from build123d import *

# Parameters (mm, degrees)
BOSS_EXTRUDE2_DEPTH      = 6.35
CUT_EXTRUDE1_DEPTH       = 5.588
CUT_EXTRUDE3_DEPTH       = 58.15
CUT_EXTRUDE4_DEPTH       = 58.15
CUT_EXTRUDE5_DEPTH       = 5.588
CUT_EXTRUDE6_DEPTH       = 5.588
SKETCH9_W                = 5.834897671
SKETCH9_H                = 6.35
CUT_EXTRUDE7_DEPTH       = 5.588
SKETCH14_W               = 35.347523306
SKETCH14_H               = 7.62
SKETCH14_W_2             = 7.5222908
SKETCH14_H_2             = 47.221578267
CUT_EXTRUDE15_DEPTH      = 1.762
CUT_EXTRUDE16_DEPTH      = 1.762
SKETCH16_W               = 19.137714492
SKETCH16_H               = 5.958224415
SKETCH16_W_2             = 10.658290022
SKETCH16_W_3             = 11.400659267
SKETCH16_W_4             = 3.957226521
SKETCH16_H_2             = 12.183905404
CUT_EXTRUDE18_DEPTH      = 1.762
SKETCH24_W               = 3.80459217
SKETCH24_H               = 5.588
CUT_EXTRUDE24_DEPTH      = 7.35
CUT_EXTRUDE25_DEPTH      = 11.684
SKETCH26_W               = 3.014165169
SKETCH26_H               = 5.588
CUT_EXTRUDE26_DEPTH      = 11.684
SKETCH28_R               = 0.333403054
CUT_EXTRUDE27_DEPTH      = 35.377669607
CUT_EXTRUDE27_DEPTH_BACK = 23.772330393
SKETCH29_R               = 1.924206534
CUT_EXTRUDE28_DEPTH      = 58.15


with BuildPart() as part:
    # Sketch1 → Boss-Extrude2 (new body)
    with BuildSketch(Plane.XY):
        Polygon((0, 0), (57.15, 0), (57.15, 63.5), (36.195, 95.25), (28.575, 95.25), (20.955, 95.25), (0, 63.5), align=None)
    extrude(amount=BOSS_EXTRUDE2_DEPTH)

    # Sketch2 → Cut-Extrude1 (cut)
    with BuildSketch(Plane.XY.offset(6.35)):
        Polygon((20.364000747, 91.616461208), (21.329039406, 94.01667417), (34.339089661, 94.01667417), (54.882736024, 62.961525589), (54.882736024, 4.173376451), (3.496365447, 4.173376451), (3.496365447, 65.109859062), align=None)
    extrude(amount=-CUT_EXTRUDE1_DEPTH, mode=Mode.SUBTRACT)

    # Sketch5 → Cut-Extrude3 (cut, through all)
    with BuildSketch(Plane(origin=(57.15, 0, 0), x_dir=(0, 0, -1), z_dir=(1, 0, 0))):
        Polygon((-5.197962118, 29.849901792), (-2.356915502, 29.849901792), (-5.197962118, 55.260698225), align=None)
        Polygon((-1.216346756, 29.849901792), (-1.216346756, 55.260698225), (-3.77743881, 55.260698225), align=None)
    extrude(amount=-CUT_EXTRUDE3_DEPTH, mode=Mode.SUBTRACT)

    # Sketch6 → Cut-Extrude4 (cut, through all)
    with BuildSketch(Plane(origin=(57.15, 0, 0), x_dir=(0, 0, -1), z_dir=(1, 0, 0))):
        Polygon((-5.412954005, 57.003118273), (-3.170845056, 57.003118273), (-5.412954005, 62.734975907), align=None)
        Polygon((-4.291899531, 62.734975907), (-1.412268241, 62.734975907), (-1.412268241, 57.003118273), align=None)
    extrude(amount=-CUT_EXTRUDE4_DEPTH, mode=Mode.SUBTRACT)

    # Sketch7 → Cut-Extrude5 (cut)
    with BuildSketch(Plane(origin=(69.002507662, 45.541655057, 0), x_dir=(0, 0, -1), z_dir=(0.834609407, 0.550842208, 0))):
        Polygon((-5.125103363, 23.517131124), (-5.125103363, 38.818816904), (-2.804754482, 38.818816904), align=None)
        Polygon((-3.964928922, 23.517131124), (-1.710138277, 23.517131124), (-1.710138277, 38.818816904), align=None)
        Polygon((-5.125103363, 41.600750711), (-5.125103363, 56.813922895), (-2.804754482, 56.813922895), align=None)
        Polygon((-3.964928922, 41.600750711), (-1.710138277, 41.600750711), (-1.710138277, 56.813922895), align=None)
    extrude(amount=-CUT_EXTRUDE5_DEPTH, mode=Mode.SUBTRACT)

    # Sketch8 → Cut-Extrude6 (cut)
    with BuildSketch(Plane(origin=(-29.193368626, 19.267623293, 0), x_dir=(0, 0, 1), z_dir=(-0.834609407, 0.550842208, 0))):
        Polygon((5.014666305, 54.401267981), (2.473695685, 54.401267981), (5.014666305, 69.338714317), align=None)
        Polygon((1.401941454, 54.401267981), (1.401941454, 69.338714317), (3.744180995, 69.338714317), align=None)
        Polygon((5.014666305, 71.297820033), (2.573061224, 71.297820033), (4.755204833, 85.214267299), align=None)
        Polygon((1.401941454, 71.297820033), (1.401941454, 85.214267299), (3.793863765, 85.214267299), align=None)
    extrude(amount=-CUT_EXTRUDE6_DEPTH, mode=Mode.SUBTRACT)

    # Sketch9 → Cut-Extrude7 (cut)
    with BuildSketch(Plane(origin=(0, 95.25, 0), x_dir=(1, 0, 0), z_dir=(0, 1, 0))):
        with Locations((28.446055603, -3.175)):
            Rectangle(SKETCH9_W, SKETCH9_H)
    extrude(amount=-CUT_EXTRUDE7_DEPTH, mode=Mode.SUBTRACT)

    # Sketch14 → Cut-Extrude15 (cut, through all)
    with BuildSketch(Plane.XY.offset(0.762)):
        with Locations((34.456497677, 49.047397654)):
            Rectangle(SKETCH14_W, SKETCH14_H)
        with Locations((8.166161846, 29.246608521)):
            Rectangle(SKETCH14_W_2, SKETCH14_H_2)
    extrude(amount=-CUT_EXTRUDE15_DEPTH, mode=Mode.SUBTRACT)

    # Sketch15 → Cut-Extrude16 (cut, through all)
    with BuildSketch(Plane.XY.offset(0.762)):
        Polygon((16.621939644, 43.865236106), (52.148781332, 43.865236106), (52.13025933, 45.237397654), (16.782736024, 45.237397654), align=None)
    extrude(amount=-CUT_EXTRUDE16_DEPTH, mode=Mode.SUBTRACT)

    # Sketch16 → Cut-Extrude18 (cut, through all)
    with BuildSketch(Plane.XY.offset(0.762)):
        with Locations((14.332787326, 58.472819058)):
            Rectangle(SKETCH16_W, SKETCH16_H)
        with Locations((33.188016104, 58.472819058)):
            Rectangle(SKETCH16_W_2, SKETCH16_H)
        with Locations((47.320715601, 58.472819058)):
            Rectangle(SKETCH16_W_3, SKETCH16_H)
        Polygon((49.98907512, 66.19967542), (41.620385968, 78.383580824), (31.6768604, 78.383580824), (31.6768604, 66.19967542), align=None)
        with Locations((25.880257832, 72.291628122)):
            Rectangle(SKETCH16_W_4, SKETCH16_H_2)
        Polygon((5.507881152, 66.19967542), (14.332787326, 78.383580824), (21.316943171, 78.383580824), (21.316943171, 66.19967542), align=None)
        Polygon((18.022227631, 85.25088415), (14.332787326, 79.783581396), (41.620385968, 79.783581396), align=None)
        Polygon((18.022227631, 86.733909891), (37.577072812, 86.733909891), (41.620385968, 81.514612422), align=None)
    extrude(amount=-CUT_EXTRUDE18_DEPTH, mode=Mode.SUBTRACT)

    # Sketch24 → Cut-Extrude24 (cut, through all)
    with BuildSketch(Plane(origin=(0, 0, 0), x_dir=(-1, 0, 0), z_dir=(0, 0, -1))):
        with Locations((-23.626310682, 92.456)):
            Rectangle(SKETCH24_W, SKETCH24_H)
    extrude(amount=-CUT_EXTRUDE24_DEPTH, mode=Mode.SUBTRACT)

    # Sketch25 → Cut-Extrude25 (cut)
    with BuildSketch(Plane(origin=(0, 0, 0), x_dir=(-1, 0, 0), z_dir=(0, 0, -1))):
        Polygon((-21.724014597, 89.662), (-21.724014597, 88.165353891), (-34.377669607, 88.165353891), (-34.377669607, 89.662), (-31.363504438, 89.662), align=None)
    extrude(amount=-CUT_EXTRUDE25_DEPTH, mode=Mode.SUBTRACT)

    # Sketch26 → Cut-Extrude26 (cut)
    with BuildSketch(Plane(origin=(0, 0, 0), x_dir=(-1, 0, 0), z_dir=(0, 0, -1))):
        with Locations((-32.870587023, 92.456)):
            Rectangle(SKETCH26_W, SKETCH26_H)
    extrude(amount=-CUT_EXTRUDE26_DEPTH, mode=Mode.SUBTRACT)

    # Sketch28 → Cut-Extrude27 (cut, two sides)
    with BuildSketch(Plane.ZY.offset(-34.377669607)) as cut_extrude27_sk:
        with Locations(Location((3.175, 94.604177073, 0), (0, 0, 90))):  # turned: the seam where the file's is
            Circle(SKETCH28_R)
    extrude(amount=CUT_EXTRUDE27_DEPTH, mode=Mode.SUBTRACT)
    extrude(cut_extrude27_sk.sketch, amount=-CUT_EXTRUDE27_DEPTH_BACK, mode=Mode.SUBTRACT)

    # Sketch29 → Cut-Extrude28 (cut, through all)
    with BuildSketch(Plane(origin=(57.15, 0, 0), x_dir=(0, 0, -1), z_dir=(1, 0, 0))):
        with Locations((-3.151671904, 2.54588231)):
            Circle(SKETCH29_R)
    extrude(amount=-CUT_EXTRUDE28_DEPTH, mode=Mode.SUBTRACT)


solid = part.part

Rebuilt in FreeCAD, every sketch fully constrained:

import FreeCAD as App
import Part
import Sketcher
from FreeCAD import Vector
Q = App.Units.Quantity

doc = App.newDocument("Part")
body = doc.addObject("PartDesign::Body", "Body")

# Sketch on XY plane
sketch1 = body.newObject("Sketcher::SketchObject", "Sketch")
sketch1.AttachmentSupport = (doc.getObject("XY_Plane"), [""])
sketch1.MapMode = "FlatFace"
sketch1.addGeometry(Part.LineSegment(Vector(0, 0, 0), Vector(57, 0, 0)), False)
sketch1.addGeometry(Part.LineSegment(Vector(57, 0, 0), Vector(57, 64, 0)), False)
sketch1.addGeometry(Part.LineSegment(Vector(57, 64, 0), Vector(36, 95, 0)), False)
sketch1.addGeometry(Part.LineSegment(Vector(36, 95, 0), Vector(21, 95, 0)), False)
sketch1.addGeometry(Part.LineSegment(Vector(21, 95, 0), Vector(0, 64, 0)), False)
sketch1.addGeometry(Part.LineSegment(Vector(0, 64, 0), Vector(0, 0, 0)), False)
sketch1.addConstraint(Sketcher.Constraint("Coincident", 0, 2, 1, 1))
sketch1.addConstraint(Sketcher.Constraint("Coincident", 1, 2, 2, 1))
sketch1.addConstraint(Sketcher.Constraint("Coincident", 2, 2, 3, 1))
sketch1.addConstraint(Sketcher.Constraint("Coincident", 3, 2, 4, 1))
sketch1.addConstraint(Sketcher.Constraint("Coincident", 4, 2, 5, 1))
sketch1.addConstraint(Sketcher.Constraint("Coincident", 5, 2, 0, 1))
sketch1.addConstraint(Sketcher.Constraint("Horizontal", 0))
sketch1.addConstraint(Sketcher.Constraint("Vertical", 1))
sketch1.addConstraint(Sketcher.Constraint("Horizontal", 3))
sketch1.addConstraint(Sketcher.Constraint("Vertical", 5))
sketch1.addConstraint(Sketcher.Constraint("Coincident", 5, 2, -1, 1))
sketch1.addConstraint(Sketcher.Constraint("Horizontal", 1, 2, 4, 2))
sketch1.addConstraint(Sketcher.Constraint("Equal", 2, 4))
sketch1.addConstraint(Sketcher.Constraint("DistanceX", 3, 2, 3, 1, Q("0.6 in")))
sketch1.addConstraint(Sketcher.Constraint("DistanceY", 1, 1, 1, 2, Q("2.5 in")))
sketch1.addConstraint(Sketcher.Constraint("DistanceX", 0, 1, 0, 2, Q("2.25 in")))
sketch1.addConstraint(Sketcher.Constraint("DistanceY", -1, 1, 2, 2, Q("3.75 in")))
pad1 = body.newObject("PartDesign::Pad", "Pad")
pad1.Profile = sketch1
pad1.Length = Q("0.25 in")

# Sketch on XY plane
sketch2 = body.newObject("Sketcher::SketchObject", "Sketch001")
sketch2.AttachmentSupport = (doc.getObject("XY_Plane"), [""])
sketch2.MapMode = "FlatFace"
sketch2.AttachmentOffset = App.Placement(Vector(0, 0, 0.25 * 25.4), App.Rotation())
sketch2.addGeometry(Part.LineSegment(Vector(21.3, 94, 0), Vector(20.4, 91.6, 0)), False)
sketch2.addGeometry(Part.LineSegment(Vector(20.4, 91.6, 0), Vector(3.5, 65.1, 0)), False)
sketch2.addGeometry(Part.LineSegment(Vector(3.5, 65.1, 0), Vector(3.5, 4.2, 0)), False)
sketch2.addGeometry(Part.LineSegment(Vector(3.5, 4.2, 0), Vector(54.9, 4.2, 0)), False)
sketch2.addGeometry(Part.LineSegment(Vector(54.9, 4.2, 0), Vector(54.9, 63, 0)), False)
sketch2.addGeometry(Part.LineSegment(Vector(54.9, 63, 0), Vector(34.3, 94, 0)), False)
sketch2.addGeometry(Part.LineSegment(Vector(34.3, 94, 0), Vector(21.3, 94, 0)), False)
sketch2.addConstraint(Sketcher.Constraint("Coincident", 0, 2, 1, 1))
sketch2.addConstraint(Sketcher.Constraint("Coincident", 1, 2, 2, 1))
sketch2.addConstraint(Sketcher.Constraint("Coincident", 2, 2, 3, 1))
sketch2.addConstraint(Sketcher.Constraint("Coincident", 3, 2, 4, 1))
sketch2.addConstraint(Sketcher.Constraint("Coincident", 4, 2, 5, 1))
sketch2.addConstraint(Sketcher.Constraint("Coincident", 5, 2, 6, 1))
sketch2.addConstraint(Sketcher.Constraint("Coincident", 6, 2, 0, 1))
sketch2.addConstraint(Sketcher.Constraint("Vertical", 2))
sketch2.addConstraint(Sketcher.Constraint("Horizontal", 3))
sketch2.addConstraint(Sketcher.Constraint("Vertical", 4))
sketch2.addConstraint(Sketcher.Constraint("Horizontal", 6))
sketch2.addConstraint(Sketcher.Constraint("DistanceX", 3, 1, 3, 2, Q("51.386371 mm")))
sketch2.addConstraint(Sketcher.Constraint("DistanceX", 6, 2, 6, 1, Q("13.01005 mm")))
sketch2.addConstraint(Sketcher.Constraint("DistanceY", 4, 1, 4, 2, Q("58.788149 mm")))
sketch2.addConstraint(Sketcher.Constraint("DistanceX", -1, 1, 0, 2, Q("20.364001 mm")))
sketch2.addConstraint(Sketcher.Constraint("Distance", 1, Q("31.418419 mm")))
sketch2.addConstraint(Sketcher.Constraint("DistanceY", 2, 2, 2, 1, Q("60.936483 mm")))
sketch2.addConstraint(Sketcher.Constraint("DistanceY", -1, 1, 0, 2, Q("91.616461 mm")))
sketch2.addConstraint(Sketcher.Constraint("DistanceY", -1, 1, 1, 2, Q("65.109859 mm")))
sketch2.addConstraint(Sketcher.Constraint("DistanceX", -1, 1, 5, 2, Q("34.33909 mm")))
sketch2.addConstraint(Sketcher.Constraint("DistanceY", 4, 2, 5, 2, Q("31.055149 mm")))
pocket1 = body.newObject("PartDesign::Pocket", "Pocket")
pocket1.Profile = sketch2
pocket1.Length = Q("0.22 in")

# Sketch on YZ plane
sketch3 = body.newObject("Sketcher::SketchObject", "Sketch002")
sketch3.AttachmentSupport = (doc.getObject("YZ_Plane"), [""])
sketch3.MapMode = "FlatFace"
sketch3.AttachmentOffset = App.Placement(Vector(0, 0, 2.25 * 25.4), App.Rotation())
sketch3.addGeometry(Part.LineSegment(Vector(29.8, 5.2, 0), Vector(29.8, 2.4, 0)), False)
sketch3.addGeometry(Part.LineSegment(Vector(29.8, 2.4, 0), Vector(55.3, 5.2, 0)), False)
sketch3.addGeometry(Part.LineSegment(Vector(55.3, 5.2, 0), Vector(29.8, 5.2, 0)), False)
sketch3.addGeometry(Part.LineSegment(Vector(29.8, 1.2, 0), Vector(55.3, 1.2, 0)), False)
sketch3.addGeometry(Part.LineSegment(Vector(55.3, 1.2, 0), Vector(55.3, 3.8, 0)), False)
sketch3.addGeometry(Part.LineSegment(Vector(55.3, 3.8, 0), Vector(29.8, 1.2, 0)), False)
sketch3.addConstraint(Sketcher.Constraint("Coincident", 0, 2, 1, 1))
sketch3.addConstraint(Sketcher.Constraint("Coincident", 1, 2, 2, 1))
sketch3.addConstraint(Sketcher.Constraint("Coincident", 2, 2, 0, 1))
sketch3.addConstraint(Sketcher.Constraint("Coincident", 3, 2, 4, 1))
sketch3.addConstraint(Sketcher.Constraint("Coincident", 4, 2, 5, 1))
sketch3.addConstraint(Sketcher.Constraint("Coincident", 5, 2, 3, 1))
sketch3.addConstraint(Sketcher.Constraint("Vertical", 0))
sketch3.addConstraint(Sketcher.Constraint("Horizontal", 2))
sketch3.addConstraint(Sketcher.Constraint("Horizontal", 3))
sketch3.addConstraint(Sketcher.Constraint("Vertical", 4))
sketch3.addConstraint(Sketcher.Constraint("Vertical", 1, 2, 3, 2))
sketch3.addConstraint(Sketcher.Constraint("Vertical", 2, 2, 5, 2))
sketch3.addConstraint(Sketcher.Constraint("DistanceX", -1, 1, 0, 2, Q("29.849902 mm")))
sketch3.addConstraint(Sketcher.Constraint("DistanceX", -1, 1, 1, 2, Q("55.260698 mm")))
sketch3.addConstraint(Sketcher.Constraint("DistanceY", 0, 2, 0, 1, Q("2.841047 mm")))
sketch3.addConstraint(Sketcher.Constraint("DistanceY", 4, 1, 4, 2, Q("2.561092 mm")))
sketch3.addConstraint(Sketcher.Constraint("DistanceY", -1, 1, 4, 2, Q("3.777439 mm")))
sketch3.addConstraint(Sketcher.Constraint("DistanceY", 3, 2, 0, 2, Q("1.140569 mm")))
pocket2 = body.newObject("PartDesign::Pocket", "Pocket001")
pocket2.Profile = sketch3
pocket2.Type = "ThroughAll"

# Sketch on YZ plane
sketch4 = body.newObject("Sketcher::SketchObject", "Sketch003")
sketch4.AttachmentSupport = (doc.getObject("YZ_Plane"), [""])
sketch4.MapMode = "FlatFace"
sketch4.AttachmentOffset = App.Placement(Vector(0, 0, 2.25 * 25.4), App.Rotation())
sketch4.addGeometry(Part.LineSegment(Vector(57, 5.4, 0), Vector(57, 3.2, 0)), False)
sketch4.addGeometry(Part.LineSegment(Vector(57, 3.2, 0), Vector(62.7, 5.4, 0)), False)
sketch4.addGeometry(Part.LineSegment(Vector(62.7, 5.4, 0), Vector(57, 5.4, 0)), False)
sketch4.addGeometry(Part.LineSegment(Vector(62.7, 1.4, 0), Vector(62.7, 4.3, 0)), False)
sketch4.addGeometry(Part.LineSegment(Vector(62.7, 4.3, 0), Vector(57, 1.4, 0)), False)
sketch4.addGeometry(Part.LineSegment(Vector(57, 1.4, 0), Vector(62.7, 1.4, 0)), False)
sketch4.addConstraint(Sketcher.Constraint("Coincident", 0, 2, 1, 1))
sketch4.addConstraint(Sketcher.Constraint("Coincident", 1, 2, 2, 1))
sketch4.addConstraint(Sketcher.Constraint("Coincident", 2, 2, 0, 1))
sketch4.addConstraint(Sketcher.Constraint("Coincident", 3, 2, 4, 1))
sketch4.addConstraint(Sketcher.Constraint("Coincident", 4, 2, 5, 1))
sketch4.addConstraint(Sketcher.Constraint("Coincident", 5, 2, 3, 1))
sketch4.addConstraint(Sketcher.Constraint("Vertical", 0))
sketch4.addConstraint(Sketcher.Constraint("Horizontal", 2))
sketch4.addConstraint(Sketcher.Constraint("Vertical", 3))
sketch4.addConstraint(Sketcher.Constraint("Horizontal", 5))
sketch4.addConstraint(Sketcher.Constraint("Vertical", 1, 2, 3, 2))
sketch4.addConstraint(Sketcher.Constraint("Vertical", 2, 2, 4, 2))
sketch4.addConstraint(Sketcher.Constraint("DistanceY", 0, 2, 0, 1, Q("2.242109 mm")))
sketch4.addConstraint(Sketcher.Constraint("DistanceY", 3, 1, 3, 2, Q("2.879631 mm")))
sketch4.addConstraint(Sketcher.Constraint("DistanceY", -1, 1, 3, 2, Q("4.2919 mm")))
sketch4.addConstraint(Sketcher.Constraint("Distance", 4, Q("6.414551 mm")))
sketch4.addConstraint(Sketcher.Constraint("DistanceX", -1, 1, 0, 2, Q("57.003118 mm")))
sketch4.addConstraint(Sketcher.Constraint("DistanceY", -1, 1, 0, 2, Q("3.170845 mm")))
pocket3 = body.newObject("PartDesign::Pocket", "Pocket002")
pocket3.Profile = sketch4
pocket3.Type = "ThroughAll"

# Sketch on an angled plane
sketch5 = body.newObject("Sketcher::SketchObject", "Sketch004")
sketch5.Placement = App.Placement(Vector(69.002508, 45.541655, 0), App.Rotation(Vector(0, 0, -1), Vector(-0.550842208, 0.834609407, 0), Vector(0.834609407, 0.550842208, 0), "ZXY"))
sketch5.addGeometry(Part.LineSegment(Vector(-5.1, 38.8, 0), Vector(-5.1, 23.5, 0)), False)
sketch5.addGeometry(Part.LineSegment(Vector(-5.1, 23.5, 0), Vector(-2.8, 38.8, 0)), False)
sketch5.addGeometry(Part.LineSegment(Vector(-2.8, 38.8, 0), Vector(-5.1, 38.8, 0)), False)
sketch5.addGeometry(Part.LineSegment(Vector(-4, 23.5, 0), Vector(-1.7, 23.5, 0)), False)
sketch5.addGeometry(Part.LineSegment(Vector(-1.7, 23.5, 0), Vector(-1.7, 38.8, 0)), False)
sketch5.addGeometry(Part.LineSegment(Vector(-1.7, 38.8, 0), Vector(-4, 23.5, 0)), False)
sketch5.addGeometry(Part.LineSegment(Vector(-5.1, 56.8, 0), Vector(-5.1, 41.6, 0)), False)
sketch5.addGeometry(Part.LineSegment(Vector(-5.1, 41.6, 0), Vector(-2.8, 56.8, 0)), False)
sketch5.addGeometry(Part.LineSegment(Vector(-2.8, 56.8, 0), Vector(-5.1, 56.8, 0)), False)
sketch5.addGeometry(Part.LineSegment(Vector(-4, 41.6, 0), Vector(-1.7, 41.6, 0)), False)
sketch5.addGeometry(Part.LineSegment(Vector(-1.7, 41.6, 0), Vector(-1.7, 56.8, 0)), False)
sketch5.addGeometry(Part.LineSegment(Vector(-1.7, 56.8, 0), Vector(-4, 41.6, 0)), False)
sketch5.addConstraint(Sketcher.Constraint("Coincident", 0, 2, 1, 1))
sketch5.addConstraint(Sketcher.Constraint("Coincident", 1, 2, 2, 1))
sketch5.addConstraint(Sketcher.Constraint("Coincident", 2, 2, 0, 1))
sketch5.addConstraint(Sketcher.Constraint("Coincident", 3, 2, 4, 1))
sketch5.addConstraint(Sketcher.Constraint("Coincident", 4, 2, 5, 1))
sketch5.addConstraint(Sketcher.Constraint("Coincident", 5, 2, 3, 1))
sketch5.addConstraint(Sketcher.Constraint("Coincident", 6, 2, 7, 1))
sketch5.addConstraint(Sketcher.Constraint("Coincident", 7, 2, 8, 1))
sketch5.addConstraint(Sketcher.Constraint("Coincident", 8, 2, 6, 1))
sketch5.addConstraint(Sketcher.Constraint("Coincident", 9, 2, 10, 1))
sketch5.addConstraint(Sketcher.Constraint("Coincident", 10, 2, 11, 1))
sketch5.addConstraint(Sketcher.Constraint("Coincident", 11, 2, 9, 1))
sketch5.addConstraint(Sketcher.Constraint("Vertical", 0))
sketch5.addConstraint(Sketcher.Constraint("Horizontal", 2))
sketch5.addConstraint(Sketcher.Constraint("Horizontal", 3))
sketch5.addConstraint(Sketcher.Constraint("Vertical", 4))
sketch5.addConstraint(Sketcher.Constraint("Vertical", 6))
sketch5.addConstraint(Sketcher.Constraint("Horizontal", 8))
sketch5.addConstraint(Sketcher.Constraint("Horizontal", 9))
sketch5.addConstraint(Sketcher.Constraint("Vertical", 10))
sketch5.addConstraint(Sketcher.Constraint("Horizontal", 0, 2, 3, 2))
sketch5.addConstraint(Sketcher.Constraint("Horizontal", 2, 2, 4, 2))
sketch5.addConstraint(Sketcher.Constraint("Horizontal", 6, 2, 9, 2))
sketch5.addConstraint(Sketcher.Constraint("Horizontal", 8, 2, 10, 2))
sketch5.addConstraint(Sketcher.Constraint("Vertical", 2, 2, 6, 2))
sketch5.addConstraint(Sketcher.Constraint("Vertical", 1, 2, 7, 2))
sketch5.addConstraint(Sketcher.Constraint("Vertical", 4, 2, 9, 2))
sketch5.addConstraint(Sketcher.Constraint("Vertical", 5, 2, 11, 2))
sketch5.addConstraint(Sketcher.Constraint("DistanceY", -1, 1, 1, 2, Q("1.5282999 in")))
sketch5.addConstraint(Sketcher.Constraint("DistanceX", 2, 2, 2, 1, Q("2.320349 mm")))
sketch5.addConstraint(Sketcher.Constraint("DistanceX", 3, 1, 3, 2, Q("2.254791 mm")))
sketch5.addConstraint(Sketcher.Constraint("Distance", 5, Q("15.466922 mm")))
sketch5.addConstraint(Sketcher.Constraint("Distance", 11, Q("15.379359 mm")))
sketch5.addConstraint(Sketcher.Constraint("DistanceX", 3, 2, -1, 1, Q("1.710138 mm")))
sketch5.addConstraint(Sketcher.Constraint("DistanceY", -1, 1, 6, 2, Q("41.600751 mm")))
sketch5.addConstraint(Sketcher.Constraint("DistanceX", 0, 2, -1, 1, Q("5.125103 mm")))
pocket4 = body.newObject("PartDesign::Pocket", "Pocket003")
pocket4.Profile = sketch5
pocket4.Length = Q("0.22 in")

# Sketch on an angled plane
sketch6 = body.newObject("Sketcher::SketchObject", "Sketch005")
sketch6.Placement = App.Placement(Vector(-29.193369, 19.267623, 0), App.Rotation(Vector(0, 0, 1), Vector(0.550842208, 0.834609407, 0), Vector(-0.834609407, 0.550842208, 0), "ZXY"))
sketch6.addGeometry(Part.LineSegment(Vector(2.5, 54.4, 0), Vector(5, 54.4, 0)), False)
sketch6.addGeometry(Part.LineSegment(Vector(5, 54.4, 0), Vector(5, 69.3, 0)), False)
sketch6.addGeometry(Part.LineSegment(Vector(5, 69.3, 0), Vector(2.5, 54.4, 0)), False)
sketch6.addGeometry(Part.LineSegment(Vector(1.4, 69.3, 0), Vector(1.4, 54.4, 0)), False)
sketch6.addGeometry(Part.LineSegment(Vector(1.4, 54.4, 0), Vector(3.7, 69.3, 0)), False)
sketch6.addGeometry(Part.LineSegment(Vector(3.7, 69.3, 0), Vector(1.4, 69.3, 0)), False)
sketch6.addGeometry(Part.LineSegment(Vector(2.6, 71.3, 0), Vector(5, 71.3, 0)), False)
sketch6.addGeometry(Part.LineSegment(Vector(5, 71.3, 0), Vector(4.8, 85.2, 0)), False)
sketch6.addGeometry(Part.LineSegment(Vector(4.8, 85.2, 0), Vector(2.6, 71.3, 0)), False)
sketch6.addGeometry(Part.LineSegment(Vector(1.4, 85.2, 0), Vector(1.4, 71.3, 0)), False)
sketch6.addGeometry(Part.LineSegment(Vector(1.4, 71.3, 0), Vector(3.8, 85.2, 0)), False)
sketch6.addGeometry(Part.LineSegment(Vector(3.8, 85.2, 0), Vector(1.4, 85.2, 0)), False)
sketch6.addConstraint(Sketcher.Constraint("Coincident", 0, 2, 1, 1))
sketch6.addConstraint(Sketcher.Constraint("Coincident", 1, 2, 2, 1))
sketch6.addConstraint(Sketcher.Constraint("Coincident", 2, 2, 0, 1))
sketch6.addConstraint(Sketcher.Constraint("Coincident", 3, 2, 4, 1))
sketch6.addConstraint(Sketcher.Constraint("Coincident", 4, 2, 5, 1))
sketch6.addConstraint(Sketcher.Constraint("Coincident", 5, 2, 3, 1))
sketch6.addConstraint(Sketcher.Constraint("Coincident", 6, 2, 7, 1))
sketch6.addConstraint(Sketcher.Constraint("Coincident", 7, 2, 8, 1))
sketch6.addConstraint(Sketcher.Constraint("Coincident", 8, 2, 6, 1))
sketch6.addConstraint(Sketcher.Constraint("Coincident", 9, 2, 10, 1))
sketch6.addConstraint(Sketcher.Constraint("Coincident", 10, 2, 11, 1))
sketch6.addConstraint(Sketcher.Constraint("Coincident", 11, 2, 9, 1))
sketch6.addConstraint(Sketcher.Constraint("Horizontal", 0))
sketch6.addConstraint(Sketcher.Constraint("Vertical", 1))
sketch6.addConstraint(Sketcher.Constraint("Vertical", 3))
sketch6.addConstraint(Sketcher.Constraint("Horizontal", 5))
sketch6.addConstraint(Sketcher.Constraint("Horizontal", 6))
sketch6.addConstraint(Sketcher.Constraint("Vertical", 9))
sketch6.addConstraint(Sketcher.Constraint("Horizontal", 11))
sketch6.addConstraint(Sketcher.Constraint("Parallel", 4, 8))
sketch6.addConstraint(Sketcher.Constraint("Horizontal", 2, 2, 3, 2))
sketch6.addConstraint(Sketcher.Constraint("Horizontal", 1, 2, 4, 2))
sketch6.addConstraint(Sketcher.Constraint("Horizontal", 8, 2, 9, 2))
sketch6.addConstraint(Sketcher.Constraint("Horizontal", 7, 2, 10, 2))
sketch6.addConstraint(Sketcher.Constraint("Vertical", 1, 2, 6, 2))
sketch6.addConstraint(Sketcher.Constraint("Vertical", 5, 2, 9, 2))
sketch6.addConstraint(Sketcher.Constraint("DistanceX", 0, 1, 0, 2, Q("2.540971 mm")))
sketch6.addConstraint(Sketcher.Constraint("DistanceX", 5, 2, 5, 1, Q("2.34224 mm")))
sketch6.addConstraint(Sketcher.Constraint("DistanceY", 0, 2, 7, 2, Q("30.812999 mm")))
sketch6.addConstraint(Sketcher.Constraint("Distance", 8, Q("14.086492 mm")))
sketch6.addConstraint(Sketcher.Constraint("Distance", 10, Q("14.12051 mm")))
sketch6.addConstraint(Sketcher.Constraint("DistanceX", 6, 1, 6, 2, Q("2.441605 mm")))
sketch6.addConstraint(Sketcher.Constraint("DistanceX", 11, 2, 11, 1, Q("2.391922 mm")))
sketch6.addConstraint(Sketcher.Constraint("DistanceY", -1, 1, 0, 2, Q("54.401268 mm")))
sketch6.addConstraint(Sketcher.Constraint("DistanceX", -1, 1, 3, 2, Q("1.401941 mm")))
sketch6.addConstraint(Sketcher.Constraint("DistanceX", -1, 1, 8, 2, Q("2.573061 mm")))
pocket5 = body.newObject("PartDesign::Pocket", "Pocket004")
pocket5.Profile = sketch6
pocket5.Length = Q("0.22 in")

# Sketch on XZ plane
sketch7 = body.newObject("Sketcher::SketchObject", "Sketch006")
sketch7.AttachmentSupport = (doc.getObject("XZ_Plane"), [""])
sketch7.MapMode = "FlatFace"
sketch7.AttachmentOffset = App.Placement(Vector(0, 0, -3.75 * 25.4), App.Rotation())
sketch7.addGeometry(Part.LineSegment(Vector(26, 0, 0), Vector(26, 6, 0)), False)
sketch7.addGeometry(Part.LineSegment(Vector(26, 6, 0), Vector(31, 6, 0)), False)
sketch7.addGeometry(Part.LineSegment(Vector(31, 6, 0), Vector(31, 0, 0)), False)
sketch7.addGeometry(Part.LineSegment(Vector(31, 0, 0), Vector(26, 0, 0)), False)
sketch7.addConstraint(Sketcher.Constraint("Coincident", 0, 2, 1, 1))
sketch7.addConstraint(Sketcher.Constraint("Coincident", 1, 2, 2, 1))
sketch7.addConstraint(Sketcher.Constraint("Coincident", 2, 2, 3, 1))
sketch7.addConstraint(Sketcher.Constraint("Coincident", 3, 2, 0, 1))
sketch7.addConstraint(Sketcher.Constraint("Vertical", 0))
sketch7.addConstraint(Sketcher.Constraint("Horizontal", 1))
sketch7.addConstraint(Sketcher.Constraint("Vertical", 2))
sketch7.addConstraint(Sketcher.Constraint("Horizontal", 3))
sketch7.addConstraint(Sketcher.Constraint("PointOnObject", 2, 2, -1))
sketch7.addConstraint(Sketcher.Constraint("DistanceY", 0, 1, 0, 2, Q("0.25 in")))
sketch7.addConstraint(Sketcher.Constraint("DistanceX", 1, 1, 1, 2, Q("5.834898 mm")))
sketch7.addConstraint(Sketcher.Constraint("DistanceX", -1, 1, 0, 2, Q("25.528607 mm")))
pocket6 = body.newObject("PartDesign::Pocket", "Pocket005")
pocket6.Profile = sketch7
pocket6.Length = Q("0.22 in")
pocket6.Reversed = True

# Sketch on XY plane
sketch8 = body.newObject("Sketcher::SketchObject", "Sketch007")
sketch8.AttachmentSupport = (doc.getObject("XY_Plane"), [""])
sketch8.MapMode = "FlatFace"
sketch8.AttachmentOffset = App.Placement(Vector(0, 0, 0.03 * 25.4), App.Rotation())
sketch8.addGeometry(Part.LineSegment(Vector(17, 53, 0), Vector(17, 45, 0)), False)
sketch8.addGeometry(Part.LineSegment(Vector(17, 45, 0), Vector(52, 45, 0)), False)
sketch8.addGeometry(Part.LineSegment(Vector(52, 45, 0), Vector(52, 53, 0)), False)
sketch8.addGeometry(Part.LineSegment(Vector(52, 53, 0), Vector(17, 53, 0)), False)
sketch8.addGeometry(Part.LineSegment(Vector(4, 53, 0), Vector(4, 6, 0)), False)
sketch8.addGeometry(Part.LineSegment(Vector(4, 6, 0), Vector(12, 6, 0)), False)
sketch8.addGeometry(Part.LineSegment(Vector(12, 6, 0), Vector(12, 53, 0)), False)
sketch8.addGeometry(Part.LineSegment(Vector(12, 53, 0), Vector(4, 53, 0)), False)
sketch8.addConstraint(Sketcher.Constraint("Coincident", 0, 2, 1, 1))
sketch8.addConstraint(Sketcher.Constraint("Coincident", 1, 2, 2, 1))
sketch8.addConstraint(Sketcher.Constraint("Coincident", 2, 2, 3, 1))
sketch8.addConstraint(Sketcher.Constraint("Coincident", 3, 2, 0, 1))
sketch8.addConstraint(Sketcher.Constraint("Coincident", 4, 2, 5, 1))
sketch8.addConstraint(Sketcher.Constraint("Coincident", 5, 2, 6, 1))
sketch8.addConstraint(Sketcher.Constraint("Coincident", 6, 2, 7, 1))
sketch8.addConstraint(Sketcher.Constraint("Coincident", 7, 2, 4, 1))
sketch8.addConstraint(Sketcher.Constraint("Vertical", 0))
sketch8.addConstraint(Sketcher.Constraint("Horizontal", 1))
sketch8.addConstraint(Sketcher.Constraint("Vertical", 2))
sketch8.addConstraint(Sketcher.Constraint("Horizontal", 3))
sketch8.addConstraint(Sketcher.Constraint("Vertical", 4))
sketch8.addConstraint(Sketcher.Constraint("Horizontal", 5))
sketch8.addConstraint(Sketcher.Constraint("Vertical", 6))
sketch8.addConstraint(Sketcher.Constraint("Horizontal", 7))
sketch8.addConstraint(Sketcher.Constraint("Horizontal", 3, 2, 6, 2))
sketch8.addConstraint(Sketcher.Constraint("DistanceY", 0, 2, 0, 1, Q("0.3 in")))
sketch8.addConstraint(Sketcher.Constraint("DistanceY", -1, 1, 0, 2, Q("1.7809999 in")))
sketch8.addConstraint(Sketcher.Constraint("DistanceX", 5, 1, 5, 2, Q("7.522291 mm")))
sketch8.addConstraint(Sketcher.Constraint("DistanceY", 4, 2, 4, 1, Q("47.221578 mm")))
sketch8.addConstraint(Sketcher.Constraint("DistanceX", 1, 1, 1, 2, Q("35.347523 mm")))
sketch8.addConstraint(Sketcher.Constraint("DistanceX", -1, 1, 1, 2, Q("52.130259 mm")))
sketch8.addConstraint(Sketcher.Constraint("DistanceX", 4, 2, 0, 2, Q("12.37772 mm")))
pocket7 = body.newObject("PartDesign::Pocket", "Pocket006")
pocket7.Profile = sketch8
pocket7.Type = "ThroughAll"

# Sketch on XY plane
sketch9 = body.newObject("Sketcher::SketchObject", "Sketch008")
sketch9.AttachmentSupport = (doc.getObject("XY_Plane"), [""])
sketch9.MapMode = "FlatFace"
sketch9.AttachmentOffset = App.Placement(Vector(0, 0, 0.03 * 25.4), App.Rotation())
sketch9.addGeometry(Part.LineSegment(Vector(16.6, 43.9, 0), Vector(52.1, 43.9, 0)), False)
sketch9.addGeometry(Part.LineSegment(Vector(52.1, 43.9, 0), Vector(52.1, 45.2, 0)), False)
sketch9.addGeometry(Part.LineSegment(Vector(52.1, 45.2, 0), Vector(16.8, 45.2, 0)), False)
sketch9.addGeometry(Part.LineSegment(Vector(16.8, 45.2, 0), Vector(16.6, 43.9, 0)), False)
sketch9.addConstraint(Sketcher.Constraint("Coincident", 0, 2, 1, 1))
sketch9.addConstraint(Sketcher.Constraint("Coincident", 1, 2, 2, 1))
sketch9.addConstraint(Sketcher.Constraint("Coincident", 2, 2, 3, 1))
sketch9.addConstraint(Sketcher.Constraint("Coincident", 3, 2, 0, 1))
sketch9.addConstraint(Sketcher.Constraint("Horizontal", 0))
sketch9.addConstraint(Sketcher.Constraint("Horizontal", 2))
sketch9.addConstraint(Sketcher.Constraint("DistanceY", -1, 1, 1, 2, Q("1.7809999 in")))
sketch9.addConstraint(Sketcher.Constraint("DistanceX", 0, 1, 0, 2, Q("35.526842 mm")))
sketch9.addConstraint(Sketcher.Constraint("Distance", 3, Q("1.381551 mm")))
sketch9.addConstraint(Sketcher.Constraint("DistanceX", 2, 2, 2, 1, Q("35.347523 mm")))
sketch9.addConstraint(Sketcher.Constraint("DistanceX", -1, 1, 0, 2, Q("52.148781 mm")))
sketch9.addConstraint(Sketcher.Constraint("DistanceX", -1, 1, 1, 2, Q("52.130259 mm")))
pocket8 = body.newObject("PartDesign::Pocket", "Pocket007")
pocket8.Profile = sketch9
pocket8.Type = "ThroughAll"

# Sketch on XY plane
sketch10 = body.newObject("Sketcher::SketchObject", "Sketch009")
sketch10.AttachmentSupport = (doc.getObject("XY_Plane"), [""])
sketch10.MapMode = "FlatFace"
sketch10.AttachmentOffset = App.Placement(Vector(0, 0, 0.03 * 25.4), App.Rotation())
sketch10.addGeometry(Part.LineSegment(Vector(4.8, 61.5, 0), Vector(4.8, 55.5, 0)), False)
sketch10.addGeometry(Part.LineSegment(Vector(4.8, 55.5, 0), Vector(23.9, 55.5, 0)), False)
sketch10.addGeometry(Part.LineSegment(Vector(23.9, 55.5, 0), Vector(23.9, 61.5, 0)), False)
sketch10.addGeometry(Part.LineSegment(Vector(23.9, 61.5, 0), Vector(4.8, 61.5, 0)), False)
sketch10.addGeometry(Part.LineSegment(Vector(27.9, 61.5, 0), Vector(27.9, 55.5, 0)), False)
sketch10.addGeometry(Part.LineSegment(Vector(27.9, 55.5, 0), Vector(38.5, 55.5, 0)), False)
sketch10.addGeometry(Part.LineSegment(Vector(38.5, 55.5, 0), Vector(38.5, 61.5, 0)), False)
sketch10.addGeometry(Part.LineSegment(Vector(38.5, 61.5, 0), Vector(27.9, 61.5, 0)), False)
sketch10.addGeometry(Part.LineSegment(Vector(41.6, 61.5, 0), Vector(41.6, 55.5, 0)), False)
sketch10.addGeometry(Part.LineSegment(Vector(41.6, 55.5, 0), Vector(53, 55.5, 0)), False)
sketch10.addGeometry(Part.LineSegment(Vector(53, 55.5, 0), Vector(53, 61.5, 0)), False)
sketch10.addGeometry(Part.LineSegment(Vector(53, 61.5, 0), Vector(41.6, 61.5, 0)), False)
sketch10.addGeometry(Part.LineSegment(Vector(50, 66.2, 0), Vector(41.6, 78.4, 0)), False)
sketch10.addGeometry(Part.LineSegment(Vector(41.6, 78.4, 0), Vector(31.7, 78.4, 0)), False)
sketch10.addGeometry(Part.LineSegment(Vector(31.7, 78.4, 0), Vector(31.7, 66.2, 0)), False)
sketch10.addGeometry(Part.LineSegment(Vector(31.7, 66.2, 0), Vector(50, 66.2, 0)), False)
sketch10.addGeometry(Part.LineSegment(Vector(23.9, 78.4, 0), Vector(23.9, 66.2, 0)), False)
sketch10.addGeometry(Part.LineSegment(Vector(23.9, 66.2, 0), Vector(27.9, 66.2, 0)), False)
sketch10.addGeometry(Part.LineSegment(Vector(27.9, 66.2, 0), Vector(27.9, 78.4, 0)), False)
sketch10.addGeometry(Part.LineSegment(Vector(27.9, 78.4, 0), Vector(23.9, 78.4, 0)), False)
sketch10.addGeometry(Part.LineSegment(Vector(14.3, 78.4, 0), Vector(5.5, 66.2, 0)), False)
sketch10.addGeometry(Part.LineSegment(Vector(5.5, 66.2, 0), Vector(21.3, 66.2, 0)), False)
sketch10.addGeometry(Part.LineSegment(Vector(21.3, 66.2, 0), Vector(21.3, 78.4, 0)), False)
sketch10.addGeometry(Part.LineSegment(Vector(21.3, 78.4, 0), Vector(14.3, 78.4, 0)), False)
sketch10.addGeometry(Part.LineSegment(Vector(18, 85.3, 0), Vector(14.3, 79.8, 0)), False)
sketch10.addGeometry(Part.LineSegment(Vector(14.3, 79.8, 0), Vector(41.6, 79.8, 0)), False)
sketch10.addGeometry(Part.LineSegment(Vector(41.6, 79.8, 0), Vector(18, 85.3, 0)), False)
sketch10.addGeometry(Part.LineSegment(Vector(37.6, 86.7, 0), Vector(18, 86.7, 0)), False)
sketch10.addGeometry(Part.LineSegment(Vector(18, 86.7, 0), Vector(41.6, 81.5, 0)), False)
sketch10.addGeometry(Part.LineSegment(Vector(41.6, 81.5, 0), Vector(37.6, 86.7, 0)), False)
sketch10.addConstraint(Sketcher.Constraint("Coincident", 0, 2, 1, 1))
sketch10.addConstraint(Sketcher.Constraint("Coincident", 1, 2, 2, 1))
sketch10.addConstraint(Sketcher.Constraint("Coincident", 2, 2, 3, 1))
sketch10.addConstraint(Sketcher.Constraint("Coincident", 3, 2, 0, 1))
sketch10.addConstraint(Sketcher.Constraint("Coincident", 4, 2, 5, 1))
sketch10.addConstraint(Sketcher.Constraint("Coincident", 5, 2, 6, 1))
sketch10.addConstraint(Sketcher.Constraint("Coincident", 6, 2, 7, 1))
sketch10.addConstraint(Sketcher.Constraint("Coincident", 7, 2, 4, 1))
sketch10.addConstraint(Sketcher.Constraint("Coincident", 8, 2, 9, 1))
sketch10.addConstraint(Sketcher.Constraint("Coincident", 9, 2, 10, 1))
sketch10.addConstraint(Sketcher.Constraint("Coincident", 10, 2, 11, 1))
sketch10.addConstraint(Sketcher.Constraint("Coincident", 11, 2, 8, 1))
sketch10.addConstraint(Sketcher.Constraint("Coincident", 12, 2, 13, 1))
sketch10.addConstraint(Sketcher.Constraint("Coincident", 13, 2, 14, 1))
sketch10.addConstraint(Sketcher.Constraint("Coincident", 14, 2, 15, 1))
sketch10.addConstraint(Sketcher.Constraint("Coincident", 15, 2, 12, 1))
sketch10.addConstraint(Sketcher.Constraint("Coincident", 16, 2, 17, 1))
sketch10.addConstraint(Sketcher.Constraint("Coincident", 17, 2, 18, 1))
sketch10.addConstraint(Sketcher.Constraint("Coincident", 18, 2, 19, 1))
sketch10.addConstraint(Sketcher.Constraint("Coincident", 19, 2, 16, 1))
sketch10.addConstraint(Sketcher.Constraint("Coincident", 20, 2, 21, 1))
sketch10.addConstraint(Sketcher.Constraint("Coincident", 21, 2, 22, 1))
sketch10.addConstraint(Sketcher.Constraint("Coincident", 22, 2, 23, 1))
sketch10.addConstraint(Sketcher.Constraint("Coincident", 23, 2, 20, 1))
sketch10.addConstraint(Sketcher.Constraint("Coincident", 24, 2, 25, 1))
sketch10.addConstraint(Sketcher.Constraint("Coincident", 25, 2, 26, 1))
sketch10.addConstraint(Sketcher.Constraint("Coincident", 26, 2, 24, 1))
sketch10.addConstraint(Sketcher.Constraint("Coincident", 27, 2, 28, 1))
sketch10.addConstraint(Sketcher.Constraint("Coincident", 28, 2, 29, 1))
sketch10.addConstraint(Sketcher.Constraint("Coincident", 29, 2, 27, 1))
sketch10.addConstraint(Sketcher.Constraint("Vertical", 0))
sketch10.addConstraint(Sketcher.Constraint("Horizontal", 1))
sketch10.addConstraint(Sketcher.Constraint("Vertical", 2))
sketch10.addConstraint(Sketcher.Constraint("Horizontal", 3))
sketch10.addConstraint(Sketcher.Constraint("Vertical", 4))
sketch10.addConstraint(Sketcher.Constraint("Horizontal", 5))
sketch10.addConstraint(Sketcher.Constraint("Vertical", 6))
sketch10.addConstraint(Sketcher.Constraint("Horizontal", 7))
sketch10.addConstraint(Sketcher.Constraint("Vertical", 8))
sketch10.addConstraint(Sketcher.Constraint("Horizontal", 9))
sketch10.addConstraint(Sketcher.Constraint("Vertical", 10))
sketch10.addConstraint(Sketcher.Constraint("Horizontal", 11))
sketch10.addConstraint(Sketcher.Constraint("Horizontal", 13))
sketch10.addConstraint(Sketcher.Constraint("Vertical", 14))
sketch10.addConstraint(Sketcher.Constraint("Horizontal", 15))
sketch10.addConstraint(Sketcher.Constraint("Vertical", 16))
sketch10.addConstraint(Sketcher.Constraint("Horizontal", 17))
sketch10.addConstraint(Sketcher.Constraint("Vertical", 18))
sketch10.addConstraint(Sketcher.Constraint("Horizontal", 19))
sketch10.addConstraint(Sketcher.Constraint("Horizontal", 21))
sketch10.addConstraint(Sketcher.Constraint("Vertical", 22))
sketch10.addConstraint(Sketcher.Constraint("Horizontal", 23))
sketch10.addConstraint(Sketcher.Constraint("Horizontal", 25))
sketch10.addConstraint(Sketcher.Constraint("Horizontal", 27))
sketch10.addConstraint(Sketcher.Constraint("Horizontal", 1, 2, 4, 2))
sketch10.addConstraint(Sketcher.Constraint("Horizontal", 3, 2, 6, 2))
sketch10.addConstraint(Sketcher.Constraint("Horizontal", 5, 2, 8, 2))
sketch10.addConstraint(Sketcher.Constraint("Horizontal", 7, 2, 10, 2))
sketch10.addConstraint(Sketcher.Constraint("Horizontal", 15, 2, 16, 2))
sketch10.addConstraint(Sketcher.Constraint("Horizontal", 13, 2, 18, 2))
sketch10.addConstraint(Sketcher.Constraint("Horizontal", 17, 2, 20, 2))
sketch10.addConstraint(Sketcher.Constraint("Horizontal", 19, 2, 22, 2))
sketch10.addConstraint(Sketcher.Constraint("Vertical", 11, 2, 12, 2))
sketch10.addConstraint(Sketcher.Constraint("Vertical", 2, 2, 16, 2))
sketch10.addConstraint(Sketcher.Constraint("Vertical", 7, 2, 17, 2))
sketch10.addConstraint(Sketcher.Constraint("Vertical", 23, 2, 24, 2))
sketch10.addConstraint(Sketcher.Constraint("Vertical", 12, 2, 25, 2))
sketch10.addConstraint(Sketcher.Constraint("Vertical", 26, 2, 27, 2))
sketch10.addConstraint(Sketcher.Constraint("Vertical", 25, 2, 28, 2))
sketch10.addConstraint(Sketcher.Constraint("DistanceX", 25, 1, 25, 2, Q("27.287599 mm")))
sketch10.addConstraint(Sketcher.Constraint("DistanceX", 5, 1, 5, 2, Q("10.65829 mm")))
sketch10.addConstraint(Sketcher.Constraint("DistanceX", 9, 1, 9, 2, Q("11.400659 mm")))
sketch10.addConstraint(Sketcher.Constraint("DistanceX", 13, 2, 6, 2, Q("6.840301 mm")))
sketch10.addConstraint(Sketcher.Constraint("DistanceX", 21, 2, 16, 2, Q("2.584701 mm")))
sketch10.addConstraint(Sketcher.Constraint("DistanceY", 23, 2, 24, 2, Q("1.400001 mm")))
sketch10.addConstraint(Sketcher.Constraint("DistanceX", 18, 2, 29, 2, Q("9.718202 mm")))
sketch10.addConstraint(Sketcher.Constraint("Distance", 24, Q("6.595708 mm")))
sketch10.addConstraint(Sketcher.Constraint("Distance", 26, Q("24.223222 mm")))
sketch10.addConstraint(Sketcher.Constraint("Distance", 29, Q("6.60223 mm")))
sketch10.addConstraint(Sketcher.Constraint("DistanceX", 1, 1, 1, 2, Q("19.137714 mm")))
sketch10.addConstraint(Sketcher.Constraint("DistanceX", 13, 2, 13, 1, Q("9.943526 mm")))
sketch10.addConstraint(Sketcher.Constraint("DistanceX", 15, 1, 15, 2, Q("18.312215 mm")))
sketch10.addConstraint(Sketcher.Constraint("DistanceX", 17, 1, 17, 2, Q("3.957227 mm")))
sketch10.addConstraint(Sketcher.Constraint("DistanceX", 21, 1, 21, 2, Q("15.809062 mm")))
sketch10.addConstraint(Sketcher.Constraint("DistanceY", 0, 2, 0, 1, Q("5.958224 mm")))
sketch10.addConstraint(Sketcher.Constraint("DistanceY", 14, 2, 14, 1, Q("12.183905 mm")))
sketch10.addConstraint(Sketcher.Constraint("DistanceX", -1, 1, 0, 2, Q("4.76393 mm")))
sketch10.addConstraint(Sketcher.Constraint("DistanceY", -1, 1, 2, 2, Q("61.451931 mm")))
sketch10.addConstraint(Sketcher.Constraint("DistanceY", -1, 1, 12, 2, Q("78.383581 mm")))
sketch10.addConstraint(Sketcher.Constraint("DistanceY", -1, 1, 27, 2, Q("86.73391 mm")))
pocket9 = body.newObject("PartDesign::Pocket", "Pocket008")
pocket9.Profile = sketch10
pocket9.Type = "ThroughAll"

# Sketch on XY plane
sketch11 = body.newObject("Sketcher::SketchObject", "Sketch010")
sketch11.AttachmentSupport = (doc.getObject("XY_Plane"), [""])
sketch11.MapMode = "FlatFace"
sketch11.addGeometry(Part.LineSegment(Vector(25.5, 95.2, 0), Vector(25.5, 89.7, 0)), False)
sketch11.addGeometry(Part.LineSegment(Vector(25.5, 89.7, 0), Vector(21.7, 89.7, 0)), False)
sketch11.addGeometry(Part.LineSegment(Vector(21.7, 89.7, 0), Vector(21.7, 95.2, 0)), False)
sketch11.addGeometry(Part.LineSegment(Vector(21.7, 95.2, 0), Vector(25.5, 95.2, 0)), False)
sketch11.addConstraint(Sketcher.Constraint("Coincident", 0, 2, 1, 1))
sketch11.addConstraint(Sketcher.Constraint("Coincident", 1, 2, 2, 1))
sketch11.addConstraint(Sketcher.Constraint("Coincident", 2, 2, 3, 1))
sketch11.addConstraint(Sketcher.Constraint("Coincident", 3, 2, 0, 1))
sketch11.addConstraint(Sketcher.Constraint("Vertical", 0))
sketch11.addConstraint(Sketcher.Constraint("Horizontal", 1))
sketch11.addConstraint(Sketcher.Constraint("Vertical", 2))
sketch11.addConstraint(Sketcher.Constraint("Horizontal", 3))
sketch11.addConstraint(Sketcher.Constraint("DistanceY", 0, 2, 0, 1, Q("0.22 in")))
sketch11.addConstraint(Sketcher.Constraint("DistanceY", -1, 1, 0, 2, Q("3.53 in")))
sketch11.addConstraint(Sketcher.Constraint("DistanceX", 1, 2, 1, 1, Q("3.804592 mm")))
sketch11.addConstraint(Sketcher.Constraint("DistanceX", -1, 1, 0, 2, Q("25.528607 mm")))
pocket10 = body.newObject("PartDesign::Pocket", "Pocket009")
pocket10.Profile = sketch11
pocket10.Type = "ThroughAll"
pocket10.Reversed = True

# Sketch on XY plane
sketch12 = body.newObject("Sketcher::SketchObject", "Sketch011")
sketch12.AttachmentSupport = (doc.getObject("XY_Plane"), [""])
sketch12.MapMode = "FlatFace"
sketch12.addGeometry(Part.LineSegment(Vector(21.7, 88.2, 0), Vector(21.7, 89.7, 0)), False)
sketch12.addGeometry(Part.LineSegment(Vector(21.7, 89.7, 0), Vector(34.4, 89.7, 0)), False)
sketch12.addGeometry(Part.LineSegment(Vector(34.4, 89.7, 0), Vector(34.4, 88.2, 0)), False)
sketch12.addGeometry(Part.LineSegment(Vector(34.4, 88.2, 0), Vector(21.7, 88.2, 0)), False)
sketch12.addConstraint(Sketcher.Constraint("Coincident", 0, 2, 1, 1))
sketch12.addConstraint(Sketcher.Constraint("Coincident", 1, 2, 2, 1))
sketch12.addConstraint(Sketcher.Constraint("Coincident", 2, 2, 3, 1))
sketch12.addConstraint(Sketcher.Constraint("Coincident", 3, 2, 0, 1))
sketch12.addConstraint(Sketcher.Constraint("Vertical", 0))
sketch12.addConstraint(Sketcher.Constraint("Horizontal", 1))
sketch12.addConstraint(Sketcher.Constraint("Vertical", 2))
sketch12.addConstraint(Sketcher.Constraint("Horizontal", 3))
sketch12.addConstraint(Sketcher.Constraint("DistanceY", -1, 1, 0, 2, Q("3.53 in")))
sketch12.addConstraint(Sketcher.Constraint("DistanceX", 1, 1, 1, 2, Q("12.653655 mm")))
sketch12.addConstraint(Sketcher.Constraint("DistanceY", 0, 1, 0, 2, Q("1.496646 mm")))
sketch12.addConstraint(Sketcher.Constraint("DistanceX", -1, 1, 1, 2, Q("34.37767 mm")))
pocket11 = body.newObject("PartDesign::Pocket", "Pocket010")
pocket11.Profile = sketch12
pocket11.Length = Q("0.46 in")
pocket11.Reversed = True

# Sketch on XY plane
sketch13 = body.newObject("Sketcher::SketchObject", "Sketch012")
sketch13.AttachmentSupport = (doc.getObject("XY_Plane"), [""])
sketch13.MapMode = "FlatFace"
sketch13.addGeometry(Part.LineSegment(Vector(34.4, 95.2, 0), Vector(34.4, 89.7, 0)), False)
sketch13.addGeometry(Part.LineSegment(Vector(34.4, 89.7, 0), Vector(31.4, 89.7, 0)), False)
sketch13.addGeometry(Part.LineSegment(Vector(31.4, 89.7, 0), Vector(31.4, 95.2, 0)), False)
sketch13.addGeometry(Part.LineSegment(Vector(31.4, 95.2, 0), Vector(34.4, 95.2, 0)), False)
sketch13.addConstraint(Sketcher.Constraint("Coincident", 0, 2, 1, 1))
sketch13.addConstraint(Sketcher.Constraint("Coincident", 1, 2, 2, 1))
sketch13.addConstraint(Sketcher.Constraint("Coincident", 2, 2, 3, 1))
sketch13.addConstraint(Sketcher.Constraint("Coincident", 3, 2, 0, 1))
sketch13.addConstraint(Sketcher.Constraint("Vertical", 0))
sketch13.addConstraint(Sketcher.Constraint("Horizontal", 1))
sketch13.addConstraint(Sketcher.Constraint("Vertical", 2))
sketch13.addConstraint(Sketcher.Constraint("Horizontal", 3))
sketch13.addConstraint(Sketcher.Constraint("DistanceY", 0, 2, 0, 1, Q("0.22 in")))
sketch13.addConstraint(Sketcher.Constraint("DistanceY", -1, 1, 0, 2, Q("3.53 in")))
sketch13.addConstraint(Sketcher.Constraint("DistanceX", 1, 2, 1, 1, Q("3.014165 mm")))
sketch13.addConstraint(Sketcher.Constraint("DistanceX", -1, 1, 0, 2, Q("34.37767 mm")))
pocket12 = body.newObject("PartDesign::Pocket", "Pocket011")
pocket12.Profile = sketch13
pocket12.Length = Q("0.46 in")
pocket12.Reversed = True

# Sketch on YZ plane
sketch14 = body.newObject("Sketcher::SketchObject", "Sketch013")
sketch14.AttachmentSupport = (doc.getObject("YZ_Plane"), [""])
sketch14.MapMode = "FlatFace"
sketch14.AttachmentOffset = App.Placement(Vector(0, 0, 34.37767), App.Rotation())
sketch14.addGeometry(Part.Circle(Vector(94.6, 3.17, 0), Vector(0, 0, 1), 0.33), False)
sketch14.addConstraint(Sketcher.Constraint("DistanceY", -1, 1, 0, 3, Q("0.125 in")))
sketch14.addConstraint(Sketcher.Constraint("Diameter", 0, Q("0.666806 mm")))
sketch14.addConstraint(Sketcher.Constraint("DistanceX", -1, 1, 0, 3, Q("94.604177 mm")))
pocket13 = body.newObject("PartDesign::Pocket", "Pocket012")
pocket13.Profile = sketch14
pocket13.Type = "ThroughAll"
pocket13.Midplane = True

# Sketch on YZ plane
sketch15 = body.newObject("Sketcher::SketchObject", "Sketch014")
sketch15.AttachmentSupport = (doc.getObject("YZ_Plane"), [""])
sketch15.MapMode = "FlatFace"
sketch15.AttachmentOffset = App.Placement(Vector(0, 0, 2.25 * 25.4), App.Rotation())
sketch15.addGeometry(Part.Circle(Vector(2.5, 3.2, 0), Vector(0, 0, 1), 1.9), False)
sketch15.addConstraint(Sketcher.Constraint("Diameter", 0, Q("3.848413 mm")))
sketch15.addConstraint(Sketcher.Constraint("DistanceY", -1, 1, 0, 3, Q("3.151672 mm")))
sketch15.addConstraint(Sketcher.Constraint("DistanceX", -1, 1, 0, 3, Q("2.545882 mm")))
pocket14 = body.newObject("PartDesign::Pocket", "Pocket013")
pocket14.Profile = sketch15
pocket14.Type = "ThroughAll"

doc.recompute()
